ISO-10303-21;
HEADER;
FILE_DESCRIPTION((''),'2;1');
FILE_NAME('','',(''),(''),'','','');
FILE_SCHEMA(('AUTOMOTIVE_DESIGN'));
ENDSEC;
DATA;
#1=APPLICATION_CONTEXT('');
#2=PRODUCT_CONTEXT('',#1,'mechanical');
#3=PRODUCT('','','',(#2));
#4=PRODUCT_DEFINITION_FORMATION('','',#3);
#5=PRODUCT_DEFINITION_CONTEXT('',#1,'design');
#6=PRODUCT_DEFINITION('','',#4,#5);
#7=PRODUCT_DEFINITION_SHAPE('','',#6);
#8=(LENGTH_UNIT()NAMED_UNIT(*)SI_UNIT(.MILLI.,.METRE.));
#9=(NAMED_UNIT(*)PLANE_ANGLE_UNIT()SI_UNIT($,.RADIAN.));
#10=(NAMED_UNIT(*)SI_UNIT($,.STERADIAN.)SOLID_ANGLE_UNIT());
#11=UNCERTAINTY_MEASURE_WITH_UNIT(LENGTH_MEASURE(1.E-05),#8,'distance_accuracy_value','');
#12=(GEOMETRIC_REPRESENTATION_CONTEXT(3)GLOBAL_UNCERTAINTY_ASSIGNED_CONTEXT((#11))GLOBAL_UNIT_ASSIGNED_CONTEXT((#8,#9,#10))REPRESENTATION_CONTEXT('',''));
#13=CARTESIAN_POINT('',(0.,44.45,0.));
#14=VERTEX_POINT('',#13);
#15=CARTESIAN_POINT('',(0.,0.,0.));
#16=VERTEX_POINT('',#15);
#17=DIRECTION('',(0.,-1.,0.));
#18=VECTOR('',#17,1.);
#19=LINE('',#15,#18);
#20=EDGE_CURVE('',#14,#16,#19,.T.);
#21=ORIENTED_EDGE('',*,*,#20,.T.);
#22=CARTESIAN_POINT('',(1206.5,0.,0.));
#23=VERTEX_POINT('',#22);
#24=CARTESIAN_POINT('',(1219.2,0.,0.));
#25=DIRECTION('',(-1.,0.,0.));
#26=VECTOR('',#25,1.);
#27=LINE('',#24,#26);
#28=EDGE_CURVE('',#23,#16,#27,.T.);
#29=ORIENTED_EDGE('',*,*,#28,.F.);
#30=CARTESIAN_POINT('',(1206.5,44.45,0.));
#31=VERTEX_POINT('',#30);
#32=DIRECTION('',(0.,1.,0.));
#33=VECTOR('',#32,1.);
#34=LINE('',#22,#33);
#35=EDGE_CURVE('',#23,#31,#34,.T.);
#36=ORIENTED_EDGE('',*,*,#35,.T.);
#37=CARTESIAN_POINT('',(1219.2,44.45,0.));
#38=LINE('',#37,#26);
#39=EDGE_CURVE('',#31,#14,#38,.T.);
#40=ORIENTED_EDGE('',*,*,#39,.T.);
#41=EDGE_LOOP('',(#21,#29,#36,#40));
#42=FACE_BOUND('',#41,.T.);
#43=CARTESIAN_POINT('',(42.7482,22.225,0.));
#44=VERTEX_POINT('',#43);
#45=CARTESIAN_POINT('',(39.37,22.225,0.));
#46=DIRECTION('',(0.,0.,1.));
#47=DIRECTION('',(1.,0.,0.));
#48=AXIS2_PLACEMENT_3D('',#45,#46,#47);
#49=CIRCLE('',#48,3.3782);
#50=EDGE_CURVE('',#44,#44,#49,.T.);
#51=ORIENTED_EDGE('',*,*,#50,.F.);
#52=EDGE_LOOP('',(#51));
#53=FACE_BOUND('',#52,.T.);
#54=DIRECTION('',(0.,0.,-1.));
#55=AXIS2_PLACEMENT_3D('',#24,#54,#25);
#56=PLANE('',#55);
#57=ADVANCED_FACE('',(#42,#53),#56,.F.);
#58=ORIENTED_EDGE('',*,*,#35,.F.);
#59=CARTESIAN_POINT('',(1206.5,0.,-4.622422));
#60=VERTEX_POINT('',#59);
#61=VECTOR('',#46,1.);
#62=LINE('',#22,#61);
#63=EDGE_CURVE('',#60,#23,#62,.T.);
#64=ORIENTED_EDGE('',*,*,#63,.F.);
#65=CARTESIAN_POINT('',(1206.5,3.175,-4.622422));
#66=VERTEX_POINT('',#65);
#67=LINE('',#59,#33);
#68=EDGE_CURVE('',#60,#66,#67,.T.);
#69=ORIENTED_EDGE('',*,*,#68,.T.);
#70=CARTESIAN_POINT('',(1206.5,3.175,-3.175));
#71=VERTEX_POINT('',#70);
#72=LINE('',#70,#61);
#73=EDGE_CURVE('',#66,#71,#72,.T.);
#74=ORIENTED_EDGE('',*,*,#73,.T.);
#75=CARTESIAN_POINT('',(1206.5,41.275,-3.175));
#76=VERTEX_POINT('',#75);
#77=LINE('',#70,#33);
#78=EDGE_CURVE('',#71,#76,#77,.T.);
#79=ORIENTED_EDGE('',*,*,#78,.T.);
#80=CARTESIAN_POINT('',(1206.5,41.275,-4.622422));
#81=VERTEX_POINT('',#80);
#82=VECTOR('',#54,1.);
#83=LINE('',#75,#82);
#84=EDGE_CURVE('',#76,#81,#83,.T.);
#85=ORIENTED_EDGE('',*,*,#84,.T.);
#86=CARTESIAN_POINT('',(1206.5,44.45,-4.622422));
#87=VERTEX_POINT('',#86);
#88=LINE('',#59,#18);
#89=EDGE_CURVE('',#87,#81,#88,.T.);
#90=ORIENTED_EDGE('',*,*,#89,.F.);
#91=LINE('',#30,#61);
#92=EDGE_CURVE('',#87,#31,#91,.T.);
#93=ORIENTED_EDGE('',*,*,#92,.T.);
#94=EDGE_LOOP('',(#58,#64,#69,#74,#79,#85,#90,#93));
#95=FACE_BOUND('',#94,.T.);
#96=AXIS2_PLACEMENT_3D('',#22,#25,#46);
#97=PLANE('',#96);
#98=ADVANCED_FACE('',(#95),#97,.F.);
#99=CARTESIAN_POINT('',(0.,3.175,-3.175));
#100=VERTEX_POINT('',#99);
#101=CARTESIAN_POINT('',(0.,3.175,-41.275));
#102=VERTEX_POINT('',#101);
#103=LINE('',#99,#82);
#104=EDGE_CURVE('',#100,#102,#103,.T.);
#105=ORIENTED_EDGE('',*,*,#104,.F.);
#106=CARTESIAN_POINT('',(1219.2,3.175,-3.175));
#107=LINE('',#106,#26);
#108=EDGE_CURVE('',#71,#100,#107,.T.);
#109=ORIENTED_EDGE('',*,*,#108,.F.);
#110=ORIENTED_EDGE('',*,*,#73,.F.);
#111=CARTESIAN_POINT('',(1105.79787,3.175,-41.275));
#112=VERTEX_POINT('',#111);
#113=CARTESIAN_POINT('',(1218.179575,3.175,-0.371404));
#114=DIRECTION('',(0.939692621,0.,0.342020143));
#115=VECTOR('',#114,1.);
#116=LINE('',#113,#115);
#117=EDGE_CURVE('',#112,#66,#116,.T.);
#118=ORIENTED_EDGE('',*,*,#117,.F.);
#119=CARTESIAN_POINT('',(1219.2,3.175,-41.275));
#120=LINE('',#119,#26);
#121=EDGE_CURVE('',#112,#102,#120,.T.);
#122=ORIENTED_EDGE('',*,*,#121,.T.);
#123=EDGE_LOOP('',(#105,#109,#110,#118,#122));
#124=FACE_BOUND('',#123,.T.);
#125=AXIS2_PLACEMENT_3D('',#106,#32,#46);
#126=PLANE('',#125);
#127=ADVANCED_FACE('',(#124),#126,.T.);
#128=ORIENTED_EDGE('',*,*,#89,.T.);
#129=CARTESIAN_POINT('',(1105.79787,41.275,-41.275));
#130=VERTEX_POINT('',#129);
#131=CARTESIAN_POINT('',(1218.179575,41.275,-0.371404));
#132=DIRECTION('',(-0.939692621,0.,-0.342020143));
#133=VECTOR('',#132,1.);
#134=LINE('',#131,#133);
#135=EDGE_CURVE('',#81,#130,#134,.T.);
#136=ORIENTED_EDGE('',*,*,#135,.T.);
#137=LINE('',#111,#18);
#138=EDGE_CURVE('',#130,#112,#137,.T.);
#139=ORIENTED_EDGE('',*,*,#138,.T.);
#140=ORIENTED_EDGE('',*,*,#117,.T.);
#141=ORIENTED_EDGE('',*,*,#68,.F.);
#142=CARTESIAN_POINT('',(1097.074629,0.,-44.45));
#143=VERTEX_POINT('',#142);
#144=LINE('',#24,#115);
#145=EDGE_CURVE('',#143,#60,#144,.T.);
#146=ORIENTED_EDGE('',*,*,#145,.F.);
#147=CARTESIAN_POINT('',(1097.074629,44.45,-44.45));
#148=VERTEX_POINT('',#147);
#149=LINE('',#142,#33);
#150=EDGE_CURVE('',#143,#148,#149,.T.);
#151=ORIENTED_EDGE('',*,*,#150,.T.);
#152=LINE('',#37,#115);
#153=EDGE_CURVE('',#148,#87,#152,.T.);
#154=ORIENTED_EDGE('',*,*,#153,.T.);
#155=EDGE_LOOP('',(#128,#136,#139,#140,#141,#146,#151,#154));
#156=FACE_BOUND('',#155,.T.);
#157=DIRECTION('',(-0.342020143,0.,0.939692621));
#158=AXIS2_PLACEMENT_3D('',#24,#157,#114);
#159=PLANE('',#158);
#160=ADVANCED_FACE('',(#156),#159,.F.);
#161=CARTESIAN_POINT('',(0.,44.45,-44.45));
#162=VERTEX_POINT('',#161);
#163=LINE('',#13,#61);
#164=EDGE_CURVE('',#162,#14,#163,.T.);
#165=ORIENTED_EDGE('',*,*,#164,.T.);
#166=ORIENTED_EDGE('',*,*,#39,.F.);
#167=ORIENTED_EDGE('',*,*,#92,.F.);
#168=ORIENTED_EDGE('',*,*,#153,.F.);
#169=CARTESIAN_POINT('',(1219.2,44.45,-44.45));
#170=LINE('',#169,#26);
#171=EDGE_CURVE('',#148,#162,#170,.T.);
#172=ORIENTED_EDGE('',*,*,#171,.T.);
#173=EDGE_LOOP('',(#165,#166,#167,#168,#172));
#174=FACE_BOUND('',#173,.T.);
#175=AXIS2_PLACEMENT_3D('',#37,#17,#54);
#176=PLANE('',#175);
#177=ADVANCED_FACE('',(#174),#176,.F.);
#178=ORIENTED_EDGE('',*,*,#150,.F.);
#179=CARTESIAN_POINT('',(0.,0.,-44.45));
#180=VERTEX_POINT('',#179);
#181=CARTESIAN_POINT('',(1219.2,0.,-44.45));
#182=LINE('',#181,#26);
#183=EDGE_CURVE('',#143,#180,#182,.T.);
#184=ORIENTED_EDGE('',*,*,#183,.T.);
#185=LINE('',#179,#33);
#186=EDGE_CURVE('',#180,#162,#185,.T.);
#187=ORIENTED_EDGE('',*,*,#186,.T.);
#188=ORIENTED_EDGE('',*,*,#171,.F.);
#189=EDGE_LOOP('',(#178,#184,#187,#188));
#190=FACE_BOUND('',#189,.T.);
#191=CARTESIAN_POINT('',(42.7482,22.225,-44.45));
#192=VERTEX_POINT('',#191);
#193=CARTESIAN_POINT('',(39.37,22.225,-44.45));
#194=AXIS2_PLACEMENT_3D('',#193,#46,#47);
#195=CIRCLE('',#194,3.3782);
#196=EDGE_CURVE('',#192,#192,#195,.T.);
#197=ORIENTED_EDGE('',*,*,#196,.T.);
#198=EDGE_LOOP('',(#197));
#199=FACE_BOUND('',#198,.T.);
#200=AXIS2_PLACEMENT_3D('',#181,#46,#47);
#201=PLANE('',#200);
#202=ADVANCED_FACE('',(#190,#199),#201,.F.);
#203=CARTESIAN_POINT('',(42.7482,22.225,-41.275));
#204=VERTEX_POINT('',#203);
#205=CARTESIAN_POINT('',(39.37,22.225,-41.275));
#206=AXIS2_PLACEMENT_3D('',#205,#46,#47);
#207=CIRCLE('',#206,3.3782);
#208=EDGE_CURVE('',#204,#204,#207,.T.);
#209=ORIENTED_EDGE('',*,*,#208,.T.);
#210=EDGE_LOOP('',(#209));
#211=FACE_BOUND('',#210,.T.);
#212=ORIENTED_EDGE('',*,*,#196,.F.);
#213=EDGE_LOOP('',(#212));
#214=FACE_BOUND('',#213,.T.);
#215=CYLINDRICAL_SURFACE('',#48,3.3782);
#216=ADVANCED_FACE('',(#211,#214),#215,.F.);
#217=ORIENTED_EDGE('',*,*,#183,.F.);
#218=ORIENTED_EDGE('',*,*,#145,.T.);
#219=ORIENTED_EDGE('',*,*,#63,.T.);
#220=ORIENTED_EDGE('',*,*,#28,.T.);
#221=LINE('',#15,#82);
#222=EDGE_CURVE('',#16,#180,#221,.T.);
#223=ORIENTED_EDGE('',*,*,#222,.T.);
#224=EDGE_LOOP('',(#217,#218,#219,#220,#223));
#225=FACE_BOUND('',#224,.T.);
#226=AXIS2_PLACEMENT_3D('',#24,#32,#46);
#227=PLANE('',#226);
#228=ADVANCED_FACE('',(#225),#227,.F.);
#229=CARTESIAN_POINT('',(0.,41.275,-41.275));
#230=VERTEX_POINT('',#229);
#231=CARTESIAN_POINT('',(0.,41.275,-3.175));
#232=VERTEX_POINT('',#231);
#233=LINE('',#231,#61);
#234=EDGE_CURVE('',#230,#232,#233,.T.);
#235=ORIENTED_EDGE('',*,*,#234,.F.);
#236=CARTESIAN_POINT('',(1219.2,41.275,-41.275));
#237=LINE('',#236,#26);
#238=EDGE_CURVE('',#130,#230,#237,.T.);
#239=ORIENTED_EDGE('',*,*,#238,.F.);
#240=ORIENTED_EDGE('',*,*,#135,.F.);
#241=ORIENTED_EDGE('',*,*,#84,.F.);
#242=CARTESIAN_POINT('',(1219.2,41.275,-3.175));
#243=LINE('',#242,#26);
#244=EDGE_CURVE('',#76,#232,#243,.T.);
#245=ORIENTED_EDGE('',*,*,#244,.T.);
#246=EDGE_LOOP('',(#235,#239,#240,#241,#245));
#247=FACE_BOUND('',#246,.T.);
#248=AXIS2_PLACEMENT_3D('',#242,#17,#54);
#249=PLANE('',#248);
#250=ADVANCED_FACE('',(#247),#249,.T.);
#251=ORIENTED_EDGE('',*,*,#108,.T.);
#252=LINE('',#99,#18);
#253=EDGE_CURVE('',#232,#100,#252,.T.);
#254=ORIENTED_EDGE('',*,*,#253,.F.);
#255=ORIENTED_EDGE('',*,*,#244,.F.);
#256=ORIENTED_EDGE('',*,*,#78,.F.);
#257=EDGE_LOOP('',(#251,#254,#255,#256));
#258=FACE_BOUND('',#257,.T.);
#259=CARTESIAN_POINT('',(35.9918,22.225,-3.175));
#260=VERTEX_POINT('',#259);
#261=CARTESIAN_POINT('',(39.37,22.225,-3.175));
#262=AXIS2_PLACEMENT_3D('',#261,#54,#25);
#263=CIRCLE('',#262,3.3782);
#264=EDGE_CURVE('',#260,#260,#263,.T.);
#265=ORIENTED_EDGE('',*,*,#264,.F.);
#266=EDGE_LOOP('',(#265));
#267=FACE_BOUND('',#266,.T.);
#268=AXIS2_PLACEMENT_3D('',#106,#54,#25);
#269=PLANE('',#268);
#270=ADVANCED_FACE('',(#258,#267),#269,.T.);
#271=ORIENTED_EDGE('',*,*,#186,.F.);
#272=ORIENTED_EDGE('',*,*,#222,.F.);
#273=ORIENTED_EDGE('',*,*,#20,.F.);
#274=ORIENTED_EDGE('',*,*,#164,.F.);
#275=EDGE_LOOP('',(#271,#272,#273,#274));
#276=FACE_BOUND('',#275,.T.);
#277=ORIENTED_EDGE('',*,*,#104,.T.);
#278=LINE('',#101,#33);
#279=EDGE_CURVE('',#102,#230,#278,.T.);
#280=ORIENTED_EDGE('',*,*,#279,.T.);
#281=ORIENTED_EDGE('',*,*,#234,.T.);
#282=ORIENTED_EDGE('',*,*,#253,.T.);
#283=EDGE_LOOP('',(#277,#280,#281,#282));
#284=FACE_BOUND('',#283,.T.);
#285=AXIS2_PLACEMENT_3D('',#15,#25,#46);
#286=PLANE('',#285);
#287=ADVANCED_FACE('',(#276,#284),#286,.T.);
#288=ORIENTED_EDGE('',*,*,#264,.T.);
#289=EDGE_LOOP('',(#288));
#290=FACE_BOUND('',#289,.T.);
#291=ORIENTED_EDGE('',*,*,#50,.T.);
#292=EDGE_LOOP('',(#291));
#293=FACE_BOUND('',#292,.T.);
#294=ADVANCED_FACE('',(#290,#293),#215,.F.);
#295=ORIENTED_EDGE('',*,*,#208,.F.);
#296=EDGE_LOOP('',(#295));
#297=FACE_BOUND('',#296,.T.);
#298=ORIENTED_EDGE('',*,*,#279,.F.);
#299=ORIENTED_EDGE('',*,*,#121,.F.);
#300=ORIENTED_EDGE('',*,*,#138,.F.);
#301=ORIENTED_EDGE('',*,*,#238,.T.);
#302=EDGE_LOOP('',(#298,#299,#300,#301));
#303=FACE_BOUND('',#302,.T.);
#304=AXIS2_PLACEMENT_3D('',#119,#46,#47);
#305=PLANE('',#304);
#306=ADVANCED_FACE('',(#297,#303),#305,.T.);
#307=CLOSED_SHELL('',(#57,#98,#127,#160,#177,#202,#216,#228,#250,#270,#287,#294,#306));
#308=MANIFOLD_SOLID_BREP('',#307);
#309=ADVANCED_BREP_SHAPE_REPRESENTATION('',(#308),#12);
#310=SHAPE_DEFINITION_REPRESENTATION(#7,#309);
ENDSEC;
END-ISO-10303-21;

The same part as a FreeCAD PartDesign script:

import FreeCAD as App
import Part
import Sketcher
from FreeCAD import Vector
Q = App.Units.Quantity


def add_polygon(sketch, points):
    """Adds a closed chain of lines whose ends are joined by coincident constraints."""
    first, n = sketch.GeometryCount, len(points)
    for a, b in zip(points, points[1:] + points[:1]):
        sketch.addGeometry(Part.LineSegment(App.Vector(*a, 0), App.Vector(*b, 0)), False)
    for i in range(n):
        sketch.addConstraint(Sketcher.Constraint("Coincident", first + i, 2, first + (i + 1) % n, 1))

doc = App.newDocument("Part")
body = doc.addObject("PartDesign::Body", "Body")

sketch1 = body.newObject("Sketcher::SketchObject", "Sketch")
sketch1.AttachmentSupport = (doc.getObject("YZ_Plane"), [""])
sketch1.MapMode = "FlatFace"
add_polygon(sketch1, [(44, 0), (0, 0), (0, -44), (44, -44)])
add_polygon(sketch1, [(3, -41), (3, -3), (41, -3), (41, -41)])
sketch1.addConstraint([
    Sketcher.Constraint("Horizontal", 0),
    Sketcher.Constraint("Vertical", 1),
    Sketcher.Constraint("Horizontal", 2),
    Sketcher.Constraint("Vertical", 3),
    Sketcher.Constraint("Vertical", 4),
    Sketcher.Constraint("Horizontal", 5),
    Sketcher.Constraint("Vertical", 6),
    Sketcher.Constraint("Horizontal", 7),
    Sketcher.Constraint("Coincident", 0, 2, -1, 1),
    Sketcher.Constraint("Equal", 2, 1),
    Sketcher.Constraint("Equal", 7, 4),
    Sketcher.Constraint("DistanceX", 5, 1, 5, 2, Q("1.5 in")),
    Sketcher.Constraint("DistanceX", 0, 2, 0, 1, Q("1.75 in")),
    Sketcher.Constraint("DistanceX", -1, 1, 4, 2, Q("0.125 in")),
    Sketcher.Constraint("DistanceY", 4, 2, -1, 1, Q("0.125 in")),
])
pad1 = body.newObject("PartDesign::Pad", "Pad")
pad1.Profile = sketch1
pad1.Length = Q("48 in")

sketch2 = body.newObject("Sketcher::SketchObject", "Sketch001")
sketch2.AttachmentSupport = (doc.getObject("XZ_Plane"), [""])
sketch2.MapMode = "FlatFace"
sketch2.AttachmentOffset = App.Placement(Vector(0, 0, -1.75 * 25.4), App.Rotation())
add_polygon(sketch2, [(1097, -44), (1219, 0), (1219, -44)])
sketch2.addConstraint([
    Sketcher.Constraint("Vertical", 1),
    Sketcher.Constraint("Horizontal", 2),
    Sketcher.Constraint("PointOnObject", 0, 2, -1),
    Sketcher.Constraint("DistanceX", -1, 1, 0, 2, Q("48 in")),
    Sketcher.Constraint("Angle", 0, Q("20 deg")),
    Sketcher.Constraint("DistanceY", 1, 2, 1, 1, Q("1.75 in")),
])
pocket1 = body.newObject("PartDesign::Pocket", "Pocket")
pocket1.Profile = sketch2
pocket1.Type = "ThroughAll"
pocket1.Reversed = True

sketch3 = body.newObject("Sketcher::SketchObject", "Sketch002")
sketch3.AttachmentSupport = (doc.getObject("XY_Plane"), [""])
sketch3.MapMode = "FlatFace"
sketch3.addGeometry(Part.Circle(Vector(39.4, 22.2, 0), Vector(0, 0, 1), 3.4), False)
sketch3.addConstraint([
    Sketcher.Constraint("Diameter", 0, Q("0.266 in")),
    Sketcher.Constraint("DistanceX", -1, 1, 0, 3, Q("1.55 in")),
    Sketcher.Constraint("DistanceY", -1, 1, 0, 3, Q("0.875 in")),
])
doc.recompute()
hole = body.newObject("PartDesign::Hole", "Hole")
hole.Profile = sketch3
hole.ThreadType = "None"
hole.Diameter = Q("0.266 in")
hole.DepthType = "ThroughAll"

sketch4 = body.newObject("Sketcher::SketchObject", "Sketch003")
sketch4.AttachmentSupport = (doc.getObject("XZ_Plane"), [""])
sketch4.MapMode = "FlatFace"
sketch4.AttachmentOffset = App.Placement(Vector(0, 0, -1.75 * 25.4), App.Rotation())
add_polygon(sketch4, [(1206.5, 0), (1219.2, 0), (1206.5, -4.6)])
sketch4.addConstraint([
    Sketcher.Constraint("Horizontal", 0),
    Sketcher.Constraint("Vertical", 2),
    Sketcher.Constraint("PointOnObject", 0, 2, -1),
    Sketcher.Constraint("DistanceX", 0, 1, 0, 2, Q("0.5 in")),
    Sketcher.Constraint("DistanceX", -1, 1, 0, 2, Q("48 in")),
    Sketcher.Constraint("Angle", 1, Q("-160 deg")),
])
pocket2 = body.newObject("PartDesign::Pocket", "Pocket001")
pocket2.Profile = sketch4
pocket2.Type = "ThroughAll"
pocket2.Reversed = True

doc.recompute()
